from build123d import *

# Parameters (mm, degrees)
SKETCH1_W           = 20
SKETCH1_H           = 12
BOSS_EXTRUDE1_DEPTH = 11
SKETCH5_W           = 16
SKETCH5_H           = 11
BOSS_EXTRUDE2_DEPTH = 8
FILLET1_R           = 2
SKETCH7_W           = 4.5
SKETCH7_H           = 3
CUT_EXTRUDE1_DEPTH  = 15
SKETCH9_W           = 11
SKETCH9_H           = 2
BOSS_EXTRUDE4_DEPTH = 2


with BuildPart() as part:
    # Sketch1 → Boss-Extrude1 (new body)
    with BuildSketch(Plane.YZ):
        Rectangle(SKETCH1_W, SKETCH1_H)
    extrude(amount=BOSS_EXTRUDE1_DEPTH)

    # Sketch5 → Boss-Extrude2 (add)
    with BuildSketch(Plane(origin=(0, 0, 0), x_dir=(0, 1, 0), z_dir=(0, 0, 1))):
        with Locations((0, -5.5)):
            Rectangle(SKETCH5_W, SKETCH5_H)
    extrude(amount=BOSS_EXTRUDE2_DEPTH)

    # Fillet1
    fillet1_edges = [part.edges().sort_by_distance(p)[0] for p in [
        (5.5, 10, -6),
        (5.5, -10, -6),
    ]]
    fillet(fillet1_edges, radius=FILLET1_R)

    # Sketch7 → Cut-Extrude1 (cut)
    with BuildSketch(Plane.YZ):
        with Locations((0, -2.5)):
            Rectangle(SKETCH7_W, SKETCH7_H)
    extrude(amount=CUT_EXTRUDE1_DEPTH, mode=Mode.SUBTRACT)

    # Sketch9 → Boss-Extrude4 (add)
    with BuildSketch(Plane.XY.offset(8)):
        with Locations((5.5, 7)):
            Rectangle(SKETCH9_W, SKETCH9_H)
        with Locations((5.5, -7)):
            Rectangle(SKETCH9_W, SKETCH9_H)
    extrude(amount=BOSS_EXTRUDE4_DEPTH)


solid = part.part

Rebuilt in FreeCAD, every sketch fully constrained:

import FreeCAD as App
import Part
import Sketcher
Q = App.Units.Quantity


def edges_at(feature, points):
    """Names of the edges that pass closest to the given points."""
    edges = feature.Shape.Edges
    near = lambda p: min(range(len(edges)), key=lambda i: edges[i].distToShape(Part.Vertex(*p))[0])
    return sorted({f"Edge{near(p) + 1}" for p in points})


def add_polygon(sketch, points):
    """Adds a closed chain of lines whose ends are joined by coincident constraints."""
    first, n = sketch.GeometryCount, len(points)
    for a, b in zip(points, points[1:] + points[:1]):
        sketch.addGeometry(Part.LineSegment(App.Vector(*a, 0), App.Vector(*b, 0)), False)
    for i in range(n):
        sketch.addConstraint(Sketcher.Constraint("Coincident", first + i, 2, first + (i + 1) % n, 1))

doc = App.newDocument("Part")
params = doc.addObject("Spreadsheet::Sheet", "Params")
for row, (alias, value) in enumerate([
    ("sketch1_width", "20 mm"),
    ("sketch1_height", "12 mm"),
    ("pad1_length", "11 mm"),
    ("sketch2_width", "11 mm"),
    ("sketch2_height", "16 mm"),
    ("pad2_length", "8 mm"),
    ("fillet_radius", "2 mm"),
    ("sketch3_height", "3 mm"),
    ("sketch3_width", "4.5 mm"),
    ("pocket1_length", "15 mm"),
    ("sketch4_width", "11 mm"),
    ("sketch4_height", "2 mm"),
    ("pad3_length", "2 mm"),
], start=1):
    params.set(f"A{row}", alias)
    params.set(f"B{row}", "=" + value)
    params.setAlias(f"B{row}", alias)

body = doc.addObject("PartDesign::Body", "Body")

sketch1 = doc.addObject("Sketcher::SketchObject", "Sketch")
body.addObject(sketch1)
sketch1.AttachmentSupport = (doc.YZ_Plane, [""])
sketch1.MapMode = "FlatFace"
add_polygon(sketch1, [(-10, 6), (-10, -6), (10, -6), (10, 6)])
sketch1.addConstraint(Sketcher.Constraint("Vertical", 0))
sketch1.addConstraint(Sketcher.Constraint("Horizontal", 1))
sketch1.addConstraint(Sketcher.Constraint("Vertical", 2))
sketch1.addConstraint(Sketcher.Constraint("Horizontal", 3))
sketch1.addConstraint(Sketcher.Constraint("Symmetric", 0, 2, 2, 2, -1, 1))
sketch1.addConstraint(Sketcher.Constraint("DistanceX", 1, 1, 1, 2, Q("20 mm")))
sketch1.addConstraint(Sketcher.Constraint("DistanceY", 0, 2, 0, 1, Q("12 mm")))
sketch1.setExpression("Constraints[9]", "Params.sketch1_width")
sketch1.setExpression("Constraints[10]", "Params.sketch1_height")
pad1 = doc.addObject("PartDesign::Pad", "Pad")
body.addObject(pad1)
pad1.Profile = sketch1
pad1.setExpression("Length", "Params.pad1_length")

sketch2 = doc.addObject("Sketcher::SketchObject", "Sketch001")
body.addObject(sketch2)
sketch2.AttachmentSupport = (doc.XY_Plane, [""])
sketch2.MapMode = "FlatFace"
add_polygon(sketch2, [(0, -8), (11, -8), (11, 8), (0, 8)])
sketch2.addConstraint(Sketcher.Constraint("Horizontal", 0))
sketch2.addConstraint(Sketcher.Constraint("Vertical", 1))
sketch2.addConstraint(Sketcher.Constraint("Horizontal", 2))
sketch2.addConstraint(Sketcher.Constraint("Vertical", 3))
sketch2.addConstraint(Sketcher.Constraint("Symmetric", 2, 2, 3, 2, -1, 1))
sketch2.addConstraint(Sketcher.Constraint("DistanceX", 0, 1, 0, 2, Q("11 mm")))
sketch2.addConstraint(Sketcher.Constraint("DistanceY", 1, 1, 1, 2, Q("16 mm")))
sketch2.setExpression("Constraints[9]", "Params.sketch2_width")
sketch2.setExpression("Constraints[10]", "Params.sketch2_height")
pad2 = doc.addObject("PartDesign::Pad", "Pad001")
body.addObject(pad2)
pad2.Profile = sketch2
pad2.setExpression("Length", "Params.pad2_length")
doc.recompute()

fillet = doc.addObject("PartDesign::Fillet", "Fillet")
body.addObject(fillet)
fillet.Base = (pad2, edges_at(pad2, [(5.5, 10, -6), (5.5, -10, -6)]))
fillet.setExpression("Radius", "Params.fillet_radius")

sketch3 = doc.addObject("Sketcher::SketchObject", "Sketch002")
body.addObject(sketch3)
sketch3.AttachmentSupport = (doc.YZ_Plane, [""])
sketch3.MapMode = "FlatFace"
add_polygon(sketch3, [(-2.25, -1), (-2.25, -4), (2.25, -4), (2.25, -1)])
sketch3.addConstraint(Sketcher.Constraint("Vertical", 0))
sketch3.addConstraint(Sketcher.Constraint("Horizontal", 1))
sketch3.addConstraint(Sketcher.Constraint("Vertical", 2))
sketch3.addConstraint(Sketcher.Constraint("Horizontal", 3))
sketch3.addConstraint(Sketcher.Constraint("DistanceY", 0, 2, 0, 1, Q("3 mm")))
sketch3.addConstraint(Sketcher.Constraint("DistanceX", 1, 1, 1, 2, Q("4.5 mm")))
sketch3.addConstraint(Sketcher.Constraint("DistanceY", 0, 2, -1, 1, Q("4 mm")))
sketch3.addConstraint(Sketcher.Constraint("DistanceX", 0, 2, -1, 1, Q("2.25 mm")))
sketch3.setExpression("Constraints[8]", "Params.sketch3_height")
sketch3.setExpression("Constraints[9]", "Params.sketch3_width")
pocket1 = doc.addObject("PartDesign::Pocket", "Pocket")
body.addObject(pocket1)
pocket1.Profile = sketch3
pocket1.setExpression("Length", "Params.pocket1_length")
pocket1.Reversed = True

sketch4 = doc.addObject("Sketcher::SketchObject", "Sketch003")
body.addObject(sketch4)
sketch4.AttachmentSupport = (doc.XY_Plane, [""])
sketch4.MapMode = "FlatFace"
sketch4.AttachmentOffset = App.Placement(App.Vector(0, 0, 8), App.Rotation())
add_polygon(sketch4, [(0, 8), (0, 6), (11, 6), (11, 8)])
add_polygon(sketch4, [(0, -6), (0, -8), (11, -8), (11, -6)])
sketch4.addConstraint(Sketcher.Constraint("Vertical", 0))
sketch4.addConstraint(Sketcher.Constraint("Horizontal", 1))
sketch4.addConstraint(Sketcher.Constraint("Vertical", 2))
sketch4.addConstraint(Sketcher.Constraint("Horizontal", 3))
sketch4.addConstraint(Sketcher.Constraint("Vertical", 4))
sketch4.addConstraint(Sketcher.Constraint("Horizontal", 5))
sketch4.addConstraint(Sketcher.Constraint("Vertical", 6))
sketch4.addConstraint(Sketcher.Constraint("Horizontal", 7))
sketch4.addConstraint(Sketcher.Constraint("Symmetric", 3, 2, 4, 2, -1, 1))
sketch4.addConstraint(Sketcher.Constraint("Symmetric", 1, 2, 6, 2, -1))
sketch4.addConstraint(Sketcher.Constraint("PointOnObject", 0, 2, -2))
sketch4.addConstraint(Sketcher.Constraint("DistanceX", 1, 1, 1, 2, Q("11 mm")))
sketch4.addConstraint(Sketcher.Constraint("DistanceY", 0, 2, 0, 1, Q("2 mm")))
sketch4.addConstraint(Sketcher.Constraint("DistanceY", -1, 1, 0, 2, Q("6 mm")))
sketch4.setExpression("Constraints[19]", "Params.sketch4_width")
sketch4.setExpression("Constraints[20]", "Params.sketch4_height")
pad3 = doc.addObject("PartDesign::Pad", "Pad002")
body.addObject(pad3)
pad3.Profile = sketch4
pad3.setExpression("Length", "Params.pad3_length")

doc.recompute()
